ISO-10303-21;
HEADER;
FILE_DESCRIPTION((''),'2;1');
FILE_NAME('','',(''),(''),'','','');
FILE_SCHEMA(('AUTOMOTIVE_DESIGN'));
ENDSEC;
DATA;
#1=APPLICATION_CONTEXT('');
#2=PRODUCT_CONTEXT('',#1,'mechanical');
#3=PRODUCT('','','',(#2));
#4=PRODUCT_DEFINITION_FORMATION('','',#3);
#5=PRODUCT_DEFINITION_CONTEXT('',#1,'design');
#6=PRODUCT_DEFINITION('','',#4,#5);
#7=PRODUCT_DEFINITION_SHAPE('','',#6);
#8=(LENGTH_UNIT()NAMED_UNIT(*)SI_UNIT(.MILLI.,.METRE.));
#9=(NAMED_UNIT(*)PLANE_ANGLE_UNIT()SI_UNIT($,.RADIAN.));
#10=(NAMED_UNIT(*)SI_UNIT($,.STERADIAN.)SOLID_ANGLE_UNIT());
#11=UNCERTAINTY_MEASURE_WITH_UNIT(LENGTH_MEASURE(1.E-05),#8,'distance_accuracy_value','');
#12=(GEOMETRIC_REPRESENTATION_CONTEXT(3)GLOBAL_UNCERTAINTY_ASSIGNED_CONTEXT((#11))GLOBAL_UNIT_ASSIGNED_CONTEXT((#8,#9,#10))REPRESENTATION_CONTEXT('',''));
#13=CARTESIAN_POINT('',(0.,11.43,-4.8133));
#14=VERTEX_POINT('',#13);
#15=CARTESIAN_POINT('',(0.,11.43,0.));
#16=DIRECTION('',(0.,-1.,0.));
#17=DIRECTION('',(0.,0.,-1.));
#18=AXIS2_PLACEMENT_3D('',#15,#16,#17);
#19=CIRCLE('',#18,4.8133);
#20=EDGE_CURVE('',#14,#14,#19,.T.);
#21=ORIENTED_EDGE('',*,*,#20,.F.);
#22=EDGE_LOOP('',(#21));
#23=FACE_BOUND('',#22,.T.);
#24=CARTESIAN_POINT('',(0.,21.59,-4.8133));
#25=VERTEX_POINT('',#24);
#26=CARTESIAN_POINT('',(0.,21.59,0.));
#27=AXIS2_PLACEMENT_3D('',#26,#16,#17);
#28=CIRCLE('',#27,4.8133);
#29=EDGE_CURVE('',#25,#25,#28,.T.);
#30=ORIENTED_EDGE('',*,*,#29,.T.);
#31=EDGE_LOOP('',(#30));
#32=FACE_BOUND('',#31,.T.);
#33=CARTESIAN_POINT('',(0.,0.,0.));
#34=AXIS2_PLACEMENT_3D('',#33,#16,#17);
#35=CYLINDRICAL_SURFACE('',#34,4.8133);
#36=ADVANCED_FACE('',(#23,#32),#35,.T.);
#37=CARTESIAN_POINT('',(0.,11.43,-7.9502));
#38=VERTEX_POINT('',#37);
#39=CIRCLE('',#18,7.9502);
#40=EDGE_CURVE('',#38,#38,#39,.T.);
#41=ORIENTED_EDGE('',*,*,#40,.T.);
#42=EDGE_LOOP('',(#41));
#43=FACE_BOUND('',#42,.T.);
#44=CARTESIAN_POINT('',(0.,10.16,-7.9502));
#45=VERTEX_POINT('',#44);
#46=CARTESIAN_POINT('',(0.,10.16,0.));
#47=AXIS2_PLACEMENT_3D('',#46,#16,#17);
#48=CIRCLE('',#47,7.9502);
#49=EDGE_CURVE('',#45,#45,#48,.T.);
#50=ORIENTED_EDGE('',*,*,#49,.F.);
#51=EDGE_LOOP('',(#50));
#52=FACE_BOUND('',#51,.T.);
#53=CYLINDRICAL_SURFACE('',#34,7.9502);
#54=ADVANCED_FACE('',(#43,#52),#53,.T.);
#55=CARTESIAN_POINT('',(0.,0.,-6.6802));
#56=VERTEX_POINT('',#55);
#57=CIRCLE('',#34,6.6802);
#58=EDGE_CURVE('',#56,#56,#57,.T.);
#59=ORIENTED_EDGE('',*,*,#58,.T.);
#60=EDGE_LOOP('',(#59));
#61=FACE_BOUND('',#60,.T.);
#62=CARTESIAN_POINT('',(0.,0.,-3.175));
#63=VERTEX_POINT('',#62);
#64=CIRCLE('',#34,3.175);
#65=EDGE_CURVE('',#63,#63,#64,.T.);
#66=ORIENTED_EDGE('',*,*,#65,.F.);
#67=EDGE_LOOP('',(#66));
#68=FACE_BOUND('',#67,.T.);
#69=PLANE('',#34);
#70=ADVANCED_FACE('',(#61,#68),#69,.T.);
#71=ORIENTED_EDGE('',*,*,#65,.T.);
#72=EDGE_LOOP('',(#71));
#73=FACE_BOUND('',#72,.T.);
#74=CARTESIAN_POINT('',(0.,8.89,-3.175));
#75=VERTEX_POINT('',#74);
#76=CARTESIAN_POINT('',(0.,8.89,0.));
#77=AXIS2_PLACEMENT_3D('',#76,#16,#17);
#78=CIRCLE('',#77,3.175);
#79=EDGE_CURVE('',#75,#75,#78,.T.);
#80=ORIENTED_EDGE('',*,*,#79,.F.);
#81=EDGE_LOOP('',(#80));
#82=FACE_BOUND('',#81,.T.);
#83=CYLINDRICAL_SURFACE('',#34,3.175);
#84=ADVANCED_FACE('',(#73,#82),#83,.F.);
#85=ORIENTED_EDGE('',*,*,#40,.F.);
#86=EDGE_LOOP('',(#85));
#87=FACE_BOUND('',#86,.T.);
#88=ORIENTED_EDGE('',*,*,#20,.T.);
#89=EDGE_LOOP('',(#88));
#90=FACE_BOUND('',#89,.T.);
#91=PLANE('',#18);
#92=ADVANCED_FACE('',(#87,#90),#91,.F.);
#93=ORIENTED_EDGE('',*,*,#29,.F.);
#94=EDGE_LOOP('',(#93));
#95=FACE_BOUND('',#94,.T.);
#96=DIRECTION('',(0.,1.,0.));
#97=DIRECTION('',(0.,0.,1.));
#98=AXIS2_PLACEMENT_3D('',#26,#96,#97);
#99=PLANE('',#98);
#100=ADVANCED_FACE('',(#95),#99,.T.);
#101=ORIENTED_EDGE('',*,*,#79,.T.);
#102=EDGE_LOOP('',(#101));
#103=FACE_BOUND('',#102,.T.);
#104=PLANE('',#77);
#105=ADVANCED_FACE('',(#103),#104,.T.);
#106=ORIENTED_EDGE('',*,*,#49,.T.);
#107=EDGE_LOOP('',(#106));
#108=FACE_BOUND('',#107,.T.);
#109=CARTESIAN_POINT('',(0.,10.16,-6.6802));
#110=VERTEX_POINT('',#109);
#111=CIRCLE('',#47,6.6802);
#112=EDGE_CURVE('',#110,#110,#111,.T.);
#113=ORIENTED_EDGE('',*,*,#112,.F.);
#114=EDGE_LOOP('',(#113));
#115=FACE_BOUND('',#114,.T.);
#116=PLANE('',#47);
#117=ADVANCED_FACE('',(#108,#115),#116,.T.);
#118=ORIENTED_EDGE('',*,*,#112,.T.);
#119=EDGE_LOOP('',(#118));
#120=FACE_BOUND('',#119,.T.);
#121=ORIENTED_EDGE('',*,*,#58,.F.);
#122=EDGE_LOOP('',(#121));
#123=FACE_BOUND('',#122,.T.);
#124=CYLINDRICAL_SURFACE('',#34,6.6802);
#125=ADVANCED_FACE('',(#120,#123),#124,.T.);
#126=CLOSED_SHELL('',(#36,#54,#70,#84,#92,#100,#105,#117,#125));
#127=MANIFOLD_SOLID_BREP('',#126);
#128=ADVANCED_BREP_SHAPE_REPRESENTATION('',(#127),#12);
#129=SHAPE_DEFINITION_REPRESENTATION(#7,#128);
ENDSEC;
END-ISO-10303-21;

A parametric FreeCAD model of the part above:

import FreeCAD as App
import Part
import Sketcher
Q = App.Units.Quantity


def add_polygon(sketch, points):
    """Adds a closed chain of lines whose ends are joined by coincident constraints."""
    first, n = sketch.GeometryCount, len(points)
    for a, b in zip(points, points[1:] + points[:1]):
        sketch.addGeometry(Part.LineSegment(App.Vector(*a, 0), App.Vector(*b, 0)), False)
    for i in range(n):
        sketch.addConstraint(Sketcher.Constraint("Coincident", first + i, 2, first + (i + 1) % n, 1))

doc = App.newDocument("Part")
body = doc.addObject("PartDesign::Body", "Body")

# Sketch on XY plane
sketch1 = body.newObject("Sketcher::SketchObject", "Sketch")
sketch1.AttachmentSupport = (doc.getObject("XY_Plane"), [""])
sketch1.MapMode = "FlatFace"
add_polygon(sketch1, [(0, 21.6), (0, 8.9), (3.2, 8.9), (3.2, 0), (6.7, 0), (6.7, 10.2), (8, 10.2), (8, 11.4), (4.8, 11.4), (4.8, 21.6)])  # lines 0-9
sketch1.addConstraint([
    Sketcher.Constraint("Vertical", 0),
    Sketcher.Constraint("Horizontal", 1),
    Sketcher.Constraint("Vertical", 2),
    Sketcher.Constraint("Horizontal", 3),
    Sketcher.Constraint("Vertical", 4),
    Sketcher.Constraint("Horizontal", 5),
    Sketcher.Constraint("Vertical", 6),
    Sketcher.Constraint("Horizontal", 7),
    Sketcher.Constraint("Vertical", 8),
    Sketcher.Constraint("Horizontal", 9),
    Sketcher.Constraint("PointOnObject", 0, 2, -2),
    Sketcher.Constraint("PointOnObject", 2, 2, -1),
    Sketcher.Constraint("Equal", 5, 6),
    Sketcher.Constraint("Equal", 4, 8),
    Sketcher.Constraint("DistanceY", 0, 2, 0, 1, Q("0.5 in")),
    Sketcher.Constraint("DistanceY", 4, 1, 4, 2, Q("0.4 in")),
    Sketcher.Constraint("DistanceX", 5, 1, 5, 2, Q("0.05 in")),
    Sketcher.Constraint("DistanceX", 1, 1, 1, 2, Q("0.125 in")),
    Sketcher.Constraint("DistanceX", 3, 1, 3, 2, Q("0.138 in")),
    Sketcher.Constraint("DistanceX", 7, 2, 7, 1, Q("0.1235 in")),
])
revolution = body.newObject("PartDesign::Revolution", "Revolution")
revolution.Profile = sketch1
revolution.ReferenceAxis = (sketch1, ["V_Axis"])
revolution.Angle = 360

doc.recompute()
